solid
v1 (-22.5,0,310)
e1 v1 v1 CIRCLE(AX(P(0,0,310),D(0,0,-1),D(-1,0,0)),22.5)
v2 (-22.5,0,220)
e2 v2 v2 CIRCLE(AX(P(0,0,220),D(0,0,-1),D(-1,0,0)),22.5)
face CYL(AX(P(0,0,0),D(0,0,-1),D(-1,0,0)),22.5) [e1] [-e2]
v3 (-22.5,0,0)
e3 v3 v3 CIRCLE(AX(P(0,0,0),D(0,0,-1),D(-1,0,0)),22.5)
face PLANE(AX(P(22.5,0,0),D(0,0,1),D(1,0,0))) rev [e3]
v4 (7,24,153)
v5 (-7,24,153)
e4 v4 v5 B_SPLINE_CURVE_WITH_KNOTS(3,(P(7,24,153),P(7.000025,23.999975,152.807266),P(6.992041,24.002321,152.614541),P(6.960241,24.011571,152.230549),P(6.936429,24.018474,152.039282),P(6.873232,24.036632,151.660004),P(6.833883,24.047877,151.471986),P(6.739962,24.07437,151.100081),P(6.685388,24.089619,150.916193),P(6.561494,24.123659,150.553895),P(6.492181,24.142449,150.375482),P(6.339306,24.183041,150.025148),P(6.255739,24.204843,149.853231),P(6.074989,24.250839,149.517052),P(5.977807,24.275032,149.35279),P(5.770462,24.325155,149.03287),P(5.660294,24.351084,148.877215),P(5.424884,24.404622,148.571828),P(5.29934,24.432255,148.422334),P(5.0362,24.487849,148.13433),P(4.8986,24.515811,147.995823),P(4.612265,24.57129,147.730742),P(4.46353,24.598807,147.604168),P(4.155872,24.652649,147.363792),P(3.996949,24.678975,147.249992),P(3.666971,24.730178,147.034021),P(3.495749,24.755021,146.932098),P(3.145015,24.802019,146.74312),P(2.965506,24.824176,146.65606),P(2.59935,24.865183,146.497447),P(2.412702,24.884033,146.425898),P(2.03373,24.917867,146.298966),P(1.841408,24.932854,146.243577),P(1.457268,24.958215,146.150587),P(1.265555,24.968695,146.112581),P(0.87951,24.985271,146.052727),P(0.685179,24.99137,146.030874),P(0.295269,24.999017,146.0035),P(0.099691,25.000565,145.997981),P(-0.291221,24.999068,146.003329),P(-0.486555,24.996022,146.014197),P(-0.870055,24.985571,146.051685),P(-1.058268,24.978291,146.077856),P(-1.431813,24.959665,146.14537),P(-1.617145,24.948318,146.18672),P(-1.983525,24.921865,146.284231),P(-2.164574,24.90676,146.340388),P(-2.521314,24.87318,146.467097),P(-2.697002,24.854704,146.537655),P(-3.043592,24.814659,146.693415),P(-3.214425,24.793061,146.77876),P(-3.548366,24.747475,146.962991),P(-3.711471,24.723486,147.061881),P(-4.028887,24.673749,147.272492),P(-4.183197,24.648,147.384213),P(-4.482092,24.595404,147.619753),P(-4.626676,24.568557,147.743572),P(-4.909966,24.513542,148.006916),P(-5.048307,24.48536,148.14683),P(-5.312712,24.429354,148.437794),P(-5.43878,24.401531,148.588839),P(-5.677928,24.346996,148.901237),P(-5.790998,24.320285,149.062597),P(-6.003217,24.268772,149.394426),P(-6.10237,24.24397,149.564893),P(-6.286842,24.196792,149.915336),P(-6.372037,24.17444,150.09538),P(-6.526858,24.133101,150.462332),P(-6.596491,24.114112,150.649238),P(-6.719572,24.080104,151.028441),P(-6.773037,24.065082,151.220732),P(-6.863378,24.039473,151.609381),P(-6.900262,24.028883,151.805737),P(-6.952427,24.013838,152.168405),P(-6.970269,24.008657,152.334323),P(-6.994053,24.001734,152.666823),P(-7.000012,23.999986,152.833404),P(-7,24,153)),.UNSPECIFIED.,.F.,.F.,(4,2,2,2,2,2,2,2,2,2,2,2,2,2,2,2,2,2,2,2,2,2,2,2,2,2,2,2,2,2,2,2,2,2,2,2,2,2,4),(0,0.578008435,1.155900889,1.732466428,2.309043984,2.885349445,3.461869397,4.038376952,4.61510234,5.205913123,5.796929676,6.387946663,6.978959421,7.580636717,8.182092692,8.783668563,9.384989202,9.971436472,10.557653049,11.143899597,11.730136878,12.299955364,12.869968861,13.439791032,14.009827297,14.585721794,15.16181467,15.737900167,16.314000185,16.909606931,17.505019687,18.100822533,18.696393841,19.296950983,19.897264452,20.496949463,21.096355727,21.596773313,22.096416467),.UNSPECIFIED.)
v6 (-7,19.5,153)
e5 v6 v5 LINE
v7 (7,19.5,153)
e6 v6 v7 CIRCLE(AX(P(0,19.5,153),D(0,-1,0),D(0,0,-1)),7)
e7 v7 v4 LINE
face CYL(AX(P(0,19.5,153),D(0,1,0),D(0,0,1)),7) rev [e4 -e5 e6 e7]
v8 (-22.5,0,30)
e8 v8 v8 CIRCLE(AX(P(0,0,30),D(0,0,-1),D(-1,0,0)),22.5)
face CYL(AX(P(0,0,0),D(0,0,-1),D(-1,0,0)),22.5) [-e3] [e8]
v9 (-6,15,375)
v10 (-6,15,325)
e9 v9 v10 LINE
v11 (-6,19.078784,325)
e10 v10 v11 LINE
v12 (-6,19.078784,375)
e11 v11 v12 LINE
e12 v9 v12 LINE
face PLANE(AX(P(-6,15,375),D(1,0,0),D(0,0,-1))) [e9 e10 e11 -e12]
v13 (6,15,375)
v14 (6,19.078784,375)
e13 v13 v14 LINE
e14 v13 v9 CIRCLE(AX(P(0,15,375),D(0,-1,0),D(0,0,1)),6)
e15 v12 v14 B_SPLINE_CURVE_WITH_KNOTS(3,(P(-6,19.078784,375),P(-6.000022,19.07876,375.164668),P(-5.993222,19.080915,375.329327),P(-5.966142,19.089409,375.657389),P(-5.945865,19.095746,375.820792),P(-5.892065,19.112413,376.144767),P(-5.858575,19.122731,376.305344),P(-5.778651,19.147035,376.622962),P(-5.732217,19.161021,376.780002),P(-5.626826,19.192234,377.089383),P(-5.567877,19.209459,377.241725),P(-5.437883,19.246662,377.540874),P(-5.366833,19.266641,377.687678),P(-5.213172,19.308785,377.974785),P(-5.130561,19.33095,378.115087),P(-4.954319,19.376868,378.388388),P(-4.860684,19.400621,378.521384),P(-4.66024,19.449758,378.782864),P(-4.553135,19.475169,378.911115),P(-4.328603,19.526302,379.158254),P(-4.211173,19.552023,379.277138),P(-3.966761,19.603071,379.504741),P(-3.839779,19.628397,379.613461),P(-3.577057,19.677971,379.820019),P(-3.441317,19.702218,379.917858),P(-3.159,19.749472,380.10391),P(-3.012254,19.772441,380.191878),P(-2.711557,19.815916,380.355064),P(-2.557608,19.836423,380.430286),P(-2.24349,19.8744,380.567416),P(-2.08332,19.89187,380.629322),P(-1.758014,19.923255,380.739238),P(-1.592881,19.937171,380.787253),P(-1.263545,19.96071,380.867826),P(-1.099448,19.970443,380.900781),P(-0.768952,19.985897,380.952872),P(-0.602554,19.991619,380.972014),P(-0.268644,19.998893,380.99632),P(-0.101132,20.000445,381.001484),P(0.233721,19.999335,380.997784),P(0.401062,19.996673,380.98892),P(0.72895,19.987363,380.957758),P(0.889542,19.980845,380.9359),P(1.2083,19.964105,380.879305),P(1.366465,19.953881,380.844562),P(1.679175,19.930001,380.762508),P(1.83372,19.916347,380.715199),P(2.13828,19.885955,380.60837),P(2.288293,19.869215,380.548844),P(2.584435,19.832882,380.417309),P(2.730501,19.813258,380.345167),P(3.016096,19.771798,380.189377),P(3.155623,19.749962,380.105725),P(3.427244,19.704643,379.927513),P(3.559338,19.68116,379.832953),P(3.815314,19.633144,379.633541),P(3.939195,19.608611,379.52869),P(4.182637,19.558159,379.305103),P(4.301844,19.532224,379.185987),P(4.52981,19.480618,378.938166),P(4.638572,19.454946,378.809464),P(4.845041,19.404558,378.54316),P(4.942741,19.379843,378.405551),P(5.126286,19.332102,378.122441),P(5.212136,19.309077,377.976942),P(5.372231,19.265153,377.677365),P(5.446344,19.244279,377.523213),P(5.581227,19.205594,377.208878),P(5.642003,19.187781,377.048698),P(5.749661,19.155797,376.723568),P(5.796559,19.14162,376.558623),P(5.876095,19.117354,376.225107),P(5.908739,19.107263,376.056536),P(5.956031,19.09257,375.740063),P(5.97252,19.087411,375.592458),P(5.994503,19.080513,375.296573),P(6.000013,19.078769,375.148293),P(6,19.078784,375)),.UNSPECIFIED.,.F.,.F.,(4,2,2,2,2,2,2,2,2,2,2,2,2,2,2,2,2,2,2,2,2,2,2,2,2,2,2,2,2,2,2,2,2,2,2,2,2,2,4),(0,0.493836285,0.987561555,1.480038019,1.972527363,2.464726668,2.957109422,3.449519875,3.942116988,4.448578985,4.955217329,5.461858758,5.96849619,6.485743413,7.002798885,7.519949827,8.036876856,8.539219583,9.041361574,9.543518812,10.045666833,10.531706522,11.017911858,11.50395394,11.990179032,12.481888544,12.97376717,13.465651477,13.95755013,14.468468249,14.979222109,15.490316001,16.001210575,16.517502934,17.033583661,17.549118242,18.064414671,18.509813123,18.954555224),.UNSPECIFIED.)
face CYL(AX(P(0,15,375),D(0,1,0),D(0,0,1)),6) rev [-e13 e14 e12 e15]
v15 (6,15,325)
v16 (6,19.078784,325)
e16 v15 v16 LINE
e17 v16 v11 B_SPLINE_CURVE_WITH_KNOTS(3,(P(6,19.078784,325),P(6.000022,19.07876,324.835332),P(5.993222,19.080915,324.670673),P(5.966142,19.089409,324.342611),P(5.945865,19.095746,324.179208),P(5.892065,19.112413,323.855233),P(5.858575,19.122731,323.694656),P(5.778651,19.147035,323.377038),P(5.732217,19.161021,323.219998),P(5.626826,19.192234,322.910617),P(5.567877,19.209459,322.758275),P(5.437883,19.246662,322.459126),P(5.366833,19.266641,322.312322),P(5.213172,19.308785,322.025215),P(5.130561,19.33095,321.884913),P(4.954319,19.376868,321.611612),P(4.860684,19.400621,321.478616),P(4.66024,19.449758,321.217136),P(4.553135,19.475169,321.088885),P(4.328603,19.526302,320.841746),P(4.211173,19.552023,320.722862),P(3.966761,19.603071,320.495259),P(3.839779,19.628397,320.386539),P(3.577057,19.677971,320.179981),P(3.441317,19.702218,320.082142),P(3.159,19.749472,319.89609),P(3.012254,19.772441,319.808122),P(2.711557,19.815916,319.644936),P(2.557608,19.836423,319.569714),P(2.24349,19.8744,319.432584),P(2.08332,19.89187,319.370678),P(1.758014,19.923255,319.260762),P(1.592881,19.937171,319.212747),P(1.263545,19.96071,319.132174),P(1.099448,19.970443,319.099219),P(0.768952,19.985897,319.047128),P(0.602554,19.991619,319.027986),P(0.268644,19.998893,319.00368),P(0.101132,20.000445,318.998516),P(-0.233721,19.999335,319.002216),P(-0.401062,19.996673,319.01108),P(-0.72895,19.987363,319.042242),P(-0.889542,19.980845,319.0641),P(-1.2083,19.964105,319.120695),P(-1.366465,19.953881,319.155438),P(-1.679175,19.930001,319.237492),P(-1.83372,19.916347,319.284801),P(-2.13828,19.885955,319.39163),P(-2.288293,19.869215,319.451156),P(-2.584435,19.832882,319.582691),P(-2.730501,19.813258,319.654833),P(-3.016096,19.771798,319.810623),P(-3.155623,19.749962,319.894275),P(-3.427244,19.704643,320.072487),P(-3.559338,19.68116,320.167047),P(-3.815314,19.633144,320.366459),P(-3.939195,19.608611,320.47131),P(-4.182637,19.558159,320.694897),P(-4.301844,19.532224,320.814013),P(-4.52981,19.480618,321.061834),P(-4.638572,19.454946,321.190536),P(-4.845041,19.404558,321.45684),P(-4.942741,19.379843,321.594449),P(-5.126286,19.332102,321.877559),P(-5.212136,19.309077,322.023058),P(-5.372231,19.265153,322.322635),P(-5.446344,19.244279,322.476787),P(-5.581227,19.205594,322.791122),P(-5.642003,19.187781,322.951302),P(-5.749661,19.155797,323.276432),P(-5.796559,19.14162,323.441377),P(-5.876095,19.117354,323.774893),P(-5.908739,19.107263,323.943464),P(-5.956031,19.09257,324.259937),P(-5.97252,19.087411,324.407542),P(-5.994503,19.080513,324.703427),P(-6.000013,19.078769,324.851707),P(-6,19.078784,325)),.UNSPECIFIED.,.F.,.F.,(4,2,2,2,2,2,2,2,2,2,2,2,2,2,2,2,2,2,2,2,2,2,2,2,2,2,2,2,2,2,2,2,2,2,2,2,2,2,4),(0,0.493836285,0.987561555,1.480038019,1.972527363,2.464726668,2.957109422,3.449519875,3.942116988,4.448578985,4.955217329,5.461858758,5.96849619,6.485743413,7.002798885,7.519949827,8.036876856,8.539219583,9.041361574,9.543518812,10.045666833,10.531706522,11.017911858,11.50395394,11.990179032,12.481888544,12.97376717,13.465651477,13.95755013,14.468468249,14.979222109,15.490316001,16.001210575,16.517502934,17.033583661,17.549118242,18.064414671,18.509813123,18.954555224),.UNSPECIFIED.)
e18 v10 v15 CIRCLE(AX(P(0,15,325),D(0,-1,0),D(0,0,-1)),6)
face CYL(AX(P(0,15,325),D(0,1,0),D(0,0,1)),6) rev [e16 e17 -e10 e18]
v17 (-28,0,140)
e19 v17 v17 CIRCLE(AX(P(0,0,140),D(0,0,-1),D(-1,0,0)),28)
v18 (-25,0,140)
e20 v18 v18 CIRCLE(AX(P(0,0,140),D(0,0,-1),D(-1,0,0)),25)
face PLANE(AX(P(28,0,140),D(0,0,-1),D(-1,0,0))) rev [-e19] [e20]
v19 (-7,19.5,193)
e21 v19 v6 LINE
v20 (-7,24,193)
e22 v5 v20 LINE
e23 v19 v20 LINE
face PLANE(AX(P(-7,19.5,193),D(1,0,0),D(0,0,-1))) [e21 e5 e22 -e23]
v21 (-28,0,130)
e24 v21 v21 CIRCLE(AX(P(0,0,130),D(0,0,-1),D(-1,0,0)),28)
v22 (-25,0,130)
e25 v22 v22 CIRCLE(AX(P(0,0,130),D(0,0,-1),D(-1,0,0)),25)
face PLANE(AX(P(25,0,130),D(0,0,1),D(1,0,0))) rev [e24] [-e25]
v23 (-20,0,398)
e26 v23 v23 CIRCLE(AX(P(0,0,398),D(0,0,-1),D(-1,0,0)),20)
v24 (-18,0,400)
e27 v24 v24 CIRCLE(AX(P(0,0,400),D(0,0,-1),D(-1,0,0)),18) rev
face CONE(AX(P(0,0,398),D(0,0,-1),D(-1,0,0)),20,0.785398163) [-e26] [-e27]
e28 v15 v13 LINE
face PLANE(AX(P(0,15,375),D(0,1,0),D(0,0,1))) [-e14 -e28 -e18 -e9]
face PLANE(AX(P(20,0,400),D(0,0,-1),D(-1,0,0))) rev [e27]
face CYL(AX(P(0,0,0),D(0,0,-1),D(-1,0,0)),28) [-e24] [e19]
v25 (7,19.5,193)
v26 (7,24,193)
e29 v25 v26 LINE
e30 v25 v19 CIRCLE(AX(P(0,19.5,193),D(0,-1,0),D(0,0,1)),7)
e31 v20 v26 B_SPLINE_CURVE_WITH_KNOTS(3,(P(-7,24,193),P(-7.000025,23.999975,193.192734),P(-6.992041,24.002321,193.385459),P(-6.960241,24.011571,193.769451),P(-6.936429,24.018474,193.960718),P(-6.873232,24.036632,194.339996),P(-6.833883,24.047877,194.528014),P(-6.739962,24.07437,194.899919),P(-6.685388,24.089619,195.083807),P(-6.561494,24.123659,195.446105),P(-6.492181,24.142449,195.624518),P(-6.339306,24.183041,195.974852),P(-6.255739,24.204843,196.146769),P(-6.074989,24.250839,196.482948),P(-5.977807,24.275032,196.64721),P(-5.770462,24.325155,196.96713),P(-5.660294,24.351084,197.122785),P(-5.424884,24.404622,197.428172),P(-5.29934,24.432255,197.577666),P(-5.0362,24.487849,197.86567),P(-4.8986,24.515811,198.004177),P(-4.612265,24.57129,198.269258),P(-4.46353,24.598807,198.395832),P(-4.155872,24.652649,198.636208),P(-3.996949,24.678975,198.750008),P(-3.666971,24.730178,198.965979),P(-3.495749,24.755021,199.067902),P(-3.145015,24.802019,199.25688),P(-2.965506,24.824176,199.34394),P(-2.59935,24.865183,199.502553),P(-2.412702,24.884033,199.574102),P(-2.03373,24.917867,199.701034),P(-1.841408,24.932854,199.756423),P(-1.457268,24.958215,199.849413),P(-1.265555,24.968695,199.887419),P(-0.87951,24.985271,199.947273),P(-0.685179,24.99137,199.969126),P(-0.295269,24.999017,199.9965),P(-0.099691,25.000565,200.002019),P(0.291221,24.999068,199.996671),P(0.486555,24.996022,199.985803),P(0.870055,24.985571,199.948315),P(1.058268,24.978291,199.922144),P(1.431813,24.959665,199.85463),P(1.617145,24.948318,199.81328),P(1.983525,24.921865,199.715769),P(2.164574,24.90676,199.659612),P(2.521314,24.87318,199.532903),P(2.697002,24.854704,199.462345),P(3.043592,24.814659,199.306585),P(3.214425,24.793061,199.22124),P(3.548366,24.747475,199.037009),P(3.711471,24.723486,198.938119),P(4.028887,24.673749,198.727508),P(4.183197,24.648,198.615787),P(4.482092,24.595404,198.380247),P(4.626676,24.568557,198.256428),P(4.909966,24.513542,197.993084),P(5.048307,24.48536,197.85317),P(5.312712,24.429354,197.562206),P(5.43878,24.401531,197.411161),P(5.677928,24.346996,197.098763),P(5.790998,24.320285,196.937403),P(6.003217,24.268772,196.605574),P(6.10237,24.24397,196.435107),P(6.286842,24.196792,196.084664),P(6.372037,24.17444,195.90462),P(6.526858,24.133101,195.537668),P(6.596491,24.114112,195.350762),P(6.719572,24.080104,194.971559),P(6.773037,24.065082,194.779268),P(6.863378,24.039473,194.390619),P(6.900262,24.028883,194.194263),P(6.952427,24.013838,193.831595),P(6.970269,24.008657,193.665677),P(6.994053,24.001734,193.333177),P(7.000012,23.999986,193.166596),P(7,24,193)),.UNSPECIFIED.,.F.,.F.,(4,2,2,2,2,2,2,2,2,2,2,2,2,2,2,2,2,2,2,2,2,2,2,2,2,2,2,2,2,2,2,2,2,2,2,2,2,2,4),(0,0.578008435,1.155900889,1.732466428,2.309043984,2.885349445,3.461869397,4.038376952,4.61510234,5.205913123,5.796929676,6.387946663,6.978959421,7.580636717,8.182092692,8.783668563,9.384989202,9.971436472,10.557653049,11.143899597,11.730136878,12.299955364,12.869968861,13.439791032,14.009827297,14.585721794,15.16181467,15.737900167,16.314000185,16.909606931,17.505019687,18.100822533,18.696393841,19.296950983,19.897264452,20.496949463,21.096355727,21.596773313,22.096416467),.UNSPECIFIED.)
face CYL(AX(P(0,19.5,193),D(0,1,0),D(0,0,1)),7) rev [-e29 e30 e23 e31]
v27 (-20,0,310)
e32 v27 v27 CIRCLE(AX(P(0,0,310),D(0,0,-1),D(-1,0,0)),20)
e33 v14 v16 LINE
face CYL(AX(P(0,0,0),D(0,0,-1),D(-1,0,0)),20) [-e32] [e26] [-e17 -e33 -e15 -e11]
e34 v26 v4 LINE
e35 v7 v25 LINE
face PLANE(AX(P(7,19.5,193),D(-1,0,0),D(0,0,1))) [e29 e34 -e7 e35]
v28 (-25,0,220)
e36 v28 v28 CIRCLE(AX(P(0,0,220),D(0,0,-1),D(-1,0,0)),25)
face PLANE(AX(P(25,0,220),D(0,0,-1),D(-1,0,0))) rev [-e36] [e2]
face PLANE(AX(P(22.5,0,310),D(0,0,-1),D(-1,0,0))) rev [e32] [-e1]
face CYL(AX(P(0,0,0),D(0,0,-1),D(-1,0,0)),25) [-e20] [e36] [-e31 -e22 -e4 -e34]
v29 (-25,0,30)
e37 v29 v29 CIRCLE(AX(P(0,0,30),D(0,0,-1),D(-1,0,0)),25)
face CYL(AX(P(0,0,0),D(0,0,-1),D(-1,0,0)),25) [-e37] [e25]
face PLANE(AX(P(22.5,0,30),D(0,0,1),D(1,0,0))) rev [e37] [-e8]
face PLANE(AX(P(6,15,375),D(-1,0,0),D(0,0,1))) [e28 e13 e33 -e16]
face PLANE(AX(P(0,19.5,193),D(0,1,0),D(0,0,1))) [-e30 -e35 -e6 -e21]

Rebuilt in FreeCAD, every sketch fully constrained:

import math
import FreeCAD as App
import Part
import Sketcher


def edges_at(feature, points):
    """Names of the edges that pass closest to the given points."""
    edges = feature.Shape.Edges
    near = lambda p: min(range(len(edges)), key=lambda i: edges[i].distToShape(Part.Vertex(*p))[0])
    return sorted({f"Edge{near(p) + 1}" for p in points})

doc = App.newDocument("Part")
body = doc.addObject("PartDesign::Body", "Body")

# Sketch on XZ plane
sketch1 = body.newObject("Sketcher::SketchObject", "Sketch")
sketch1.AttachmentSupport = (doc.getObject("XZ_Plane"), [""])
sketch1.MapMode = "FlatFace"
sketch1.addGeometry([
    Part.LineSegment(App.Vector(0, 0, 0), App.Vector(0, 400, 0)),  # 0
    Part.LineSegment(App.Vector(0, 400, 0), App.Vector(20, 400, 0)),  # 1
    Part.LineSegment(App.Vector(20, 400, 0), App.Vector(20, 310, 0)),  # 2
    Part.LineSegment(App.Vector(20, 310, 0), App.Vector(22.5, 310, 0)),  # 3
    Part.LineSegment(App.Vector(22.5, 310, 0), App.Vector(22.5, 220, 0)),  # 4
    Part.LineSegment(App.Vector(22.5, 220, 0), App.Vector(25, 220, 0)),  # 5
    Part.LineSegment(App.Vector(25, 220, 0), App.Vector(25, 140, 0)),  # 6
    Part.LineSegment(App.Vector(25, 140, 0), App.Vector(28, 140, 0)),  # 7
    Part.LineSegment(App.Vector(28, 140, 0), App.Vector(28, 130, 0)),  # 8
    Part.LineSegment(App.Vector(28, 130, 0), App.Vector(25, 130, 0)),  # 9
    Part.LineSegment(App.Vector(25, 130, 0), App.Vector(25, 30, 0)),  # 10
    Part.LineSegment(App.Vector(25, 30, 0), App.Vector(22.5, 30, 0)),  # 11
    Part.LineSegment(App.Vector(22.5, 30, 0), App.Vector(22.5, 0, 0)),  # 12
    Part.LineSegment(App.Vector(22.5, 0, 0), App.Vector(0, 0, 0)),  # 13
], False)
sketch1.addConstraint([
    Sketcher.Constraint("Coincident", 0, 2, 1, 1),
    Sketcher.Constraint("Coincident", 1, 2, 2, 1),
    Sketcher.Constraint("Coincident", 2, 2, 3, 1),
    Sketcher.Constraint("Coincident", 3, 2, 4, 1),
    Sketcher.Constraint("Coincident", 4, 2, 5, 1),
    Sketcher.Constraint("Coincident", 5, 2, 6, 1),
    Sketcher.Constraint("Coincident", 6, 2, 7, 1),
    Sketcher.Constraint("Coincident", 7, 2, 8, 1),
    Sketcher.Constraint("Coincident", 8, 2, 9, 1),
    Sketcher.Constraint("Coincident", 9, 2, 10, 1),
    Sketcher.Constraint("Coincident", 10, 2, 11, 1),
    Sketcher.Constraint("Coincident", 11, 2, 12, 1),
    Sketcher.Constraint("Coincident", 12, 2, 13, 1),
    Sketcher.Constraint("Coincident", 13, 2, 0, 1),
    Sketcher.Constraint("Vertical", 0),
    Sketcher.Constraint("Horizontal", 1),
    Sketcher.Constraint("Vertical", 2),
    Sketcher.Constraint("Horizontal", 3),
    Sketcher.Constraint("Vertical", 4),
    Sketcher.Constraint("Horizontal", 5),
    Sketcher.Constraint("Vertical", 6),
    Sketcher.Constraint("Horizontal", 7),
    Sketcher.Constraint("Vertical", 8),
    Sketcher.Constraint("Horizontal", 9),
    Sketcher.Constraint("Vertical", 10),
    Sketcher.Constraint("Horizontal", 11),
    Sketcher.Constraint("Vertical", 12),
    Sketcher.Constraint("Horizontal", 13),
    Sketcher.Constraint("Coincident", 13, 2, -1, 1),
    Sketcher.Constraint("Vertical", 6, 2, 9, 2),
    Sketcher.Constraint("Vertical", 4, 2, 11, 2),
    Sketcher.Constraint("Equal", 3, 5),
    Sketcher.Constraint("Equal", 2, 4),
    Sketcher.Constraint("DistanceX", 1, 1, 1, 2, 20.0),
    Sketcher.Constraint("DistanceX", 7, 1, 7, 2, 3.0),
    Sketcher.Constraint("DistanceY", 0, 1, 0, 2, 400.0),
    Sketcher.Constraint("DistanceY", 2, 2, 2, 1, 90.0),
    Sketcher.Constraint("DistanceY", 6, 2, 6, 1, 80.0),
    Sketcher.Constraint("DistanceY", 8, 2, 8, 1, 10.0),
    Sketcher.Constraint("DistanceY", 10, 2, 10, 1, 100.0),
    Sketcher.Constraint("DistanceX", 3, 1, 3, 2, 2.5),
])
revolution = body.newObject("PartDesign::Revolution", "Revolution")
revolution.Profile = sketch1
revolution.ReferenceAxis = (sketch1, ["V_Axis"])
revolution.Angle = 360

# Sketch on XZ plane
sketch2 = body.newObject("Sketcher::SketchObject", "Sketch001")
sketch2.AttachmentSupport = (doc.getObject("XZ_Plane"), [""])
sketch2.MapMode = "FlatFace"
sketch2.AttachmentOffset = App.Placement(App.Vector(0, 0, -20), App.Rotation())
sketch2.addGeometry([
    Part.LineSegment(App.Vector(-6, 375, 0), App.Vector(-6, 325, 0)),
    Part.ArcOfCircle(Part.Circle(App.Vector(0, 325, 0), App.Vector(0, 0, 1), 6), math.radians(180), math.radians(360)),
    Part.LineSegment(App.Vector(6, 325, 0), App.Vector(6, 375, 0)),
    Part.ArcOfCircle(Part.Circle(App.Vector(0, 375, 0), App.Vector(0, 0, 1), 6), math.radians(0), math.radians(180)),
], False)
sketch2.addConstraint([
    Sketcher.Constraint("Tangent", 0, 2, 1, 1),
    Sketcher.Constraint("Tangent", 1, 2, 2, 1),
    Sketcher.Constraint("Tangent", 2, 2, 3, 1),
    Sketcher.Constraint("Tangent", 3, 2, 0, 1),
    Sketcher.Constraint("Vertical", 0),
    Sketcher.Constraint("Vertical", 2),
    Sketcher.Constraint("PointOnObject", 1, 3, -2),
    Sketcher.Constraint("Radius", 1, 6.0),
    Sketcher.Constraint("DistanceY", 0, 2, 0, 1, 50.0),
    Sketcher.Constraint("DistanceY", -1, 1, 1, 3, 325.0),
])
pocket1 = body.newObject("PartDesign::Pocket", "Pocket")
pocket1.Profile = sketch2
pocket1.Length = 5
pocket1.Reversed = True

# Sketch on XZ plane
sketch3 = body.newObject("Sketcher::SketchObject", "Sketch002")
sketch3.AttachmentSupport = (doc.getObject("XZ_Plane"), [""])
sketch3.MapMode = "FlatFace"
sketch3.AttachmentOffset = App.Placement(App.Vector(0, 0, -25), App.Rotation())
sketch3.addGeometry([
    Part.LineSegment(App.Vector(-7, 193, 0), App.Vector(-7, 153, 0)),
    Part.ArcOfCircle(Part.Circle(App.Vector(0, 153, 0), App.Vector(0, 0, 1), 7), math.radians(180), math.radians(360)),
    Part.LineSegment(App.Vector(7, 153, 0), App.Vector(7, 193, 0)),
    Part.ArcOfCircle(Part.Circle(App.Vector(0, 193, 0), App.Vector(0, 0, 1), 7), math.radians(0), math.radians(180)),
], False)
sketch3.addConstraint([
    Sketcher.Constraint("Tangent", 0, 2, 1, 1),
    Sketcher.Constraint("Tangent", 1, 2, 2, 1),
    Sketcher.Constraint("Tangent", 2, 2, 3, 1),
    Sketcher.Constraint("Tangent", 3, 2, 0, 1),
    Sketcher.Constraint("Vertical", 0),
    Sketcher.Constraint("Vertical", 2),
    Sketcher.Constraint("PointOnObject", 1, 3, -2),
    Sketcher.Constraint("Radius", 1, 7.0),
    Sketcher.Constraint("DistanceY", 0, 2, 0, 1, 40.0),
    Sketcher.Constraint("DistanceY", -1, 1, 1, 3, 153.0),
])
pocket2 = body.newObject("PartDesign::Pocket", "Pocket001")
pocket2.Profile = sketch3
pocket2.Length = 5.5
pocket2.Reversed = True
doc.recompute()

chamfer = body.newObject("PartDesign::Chamfer", "Chamfer")
chamfer.Base = (pocket2, edges_at(pocket2, [(20, 0, 400)]))
chamfer.Size = 2

doc.recompute()
